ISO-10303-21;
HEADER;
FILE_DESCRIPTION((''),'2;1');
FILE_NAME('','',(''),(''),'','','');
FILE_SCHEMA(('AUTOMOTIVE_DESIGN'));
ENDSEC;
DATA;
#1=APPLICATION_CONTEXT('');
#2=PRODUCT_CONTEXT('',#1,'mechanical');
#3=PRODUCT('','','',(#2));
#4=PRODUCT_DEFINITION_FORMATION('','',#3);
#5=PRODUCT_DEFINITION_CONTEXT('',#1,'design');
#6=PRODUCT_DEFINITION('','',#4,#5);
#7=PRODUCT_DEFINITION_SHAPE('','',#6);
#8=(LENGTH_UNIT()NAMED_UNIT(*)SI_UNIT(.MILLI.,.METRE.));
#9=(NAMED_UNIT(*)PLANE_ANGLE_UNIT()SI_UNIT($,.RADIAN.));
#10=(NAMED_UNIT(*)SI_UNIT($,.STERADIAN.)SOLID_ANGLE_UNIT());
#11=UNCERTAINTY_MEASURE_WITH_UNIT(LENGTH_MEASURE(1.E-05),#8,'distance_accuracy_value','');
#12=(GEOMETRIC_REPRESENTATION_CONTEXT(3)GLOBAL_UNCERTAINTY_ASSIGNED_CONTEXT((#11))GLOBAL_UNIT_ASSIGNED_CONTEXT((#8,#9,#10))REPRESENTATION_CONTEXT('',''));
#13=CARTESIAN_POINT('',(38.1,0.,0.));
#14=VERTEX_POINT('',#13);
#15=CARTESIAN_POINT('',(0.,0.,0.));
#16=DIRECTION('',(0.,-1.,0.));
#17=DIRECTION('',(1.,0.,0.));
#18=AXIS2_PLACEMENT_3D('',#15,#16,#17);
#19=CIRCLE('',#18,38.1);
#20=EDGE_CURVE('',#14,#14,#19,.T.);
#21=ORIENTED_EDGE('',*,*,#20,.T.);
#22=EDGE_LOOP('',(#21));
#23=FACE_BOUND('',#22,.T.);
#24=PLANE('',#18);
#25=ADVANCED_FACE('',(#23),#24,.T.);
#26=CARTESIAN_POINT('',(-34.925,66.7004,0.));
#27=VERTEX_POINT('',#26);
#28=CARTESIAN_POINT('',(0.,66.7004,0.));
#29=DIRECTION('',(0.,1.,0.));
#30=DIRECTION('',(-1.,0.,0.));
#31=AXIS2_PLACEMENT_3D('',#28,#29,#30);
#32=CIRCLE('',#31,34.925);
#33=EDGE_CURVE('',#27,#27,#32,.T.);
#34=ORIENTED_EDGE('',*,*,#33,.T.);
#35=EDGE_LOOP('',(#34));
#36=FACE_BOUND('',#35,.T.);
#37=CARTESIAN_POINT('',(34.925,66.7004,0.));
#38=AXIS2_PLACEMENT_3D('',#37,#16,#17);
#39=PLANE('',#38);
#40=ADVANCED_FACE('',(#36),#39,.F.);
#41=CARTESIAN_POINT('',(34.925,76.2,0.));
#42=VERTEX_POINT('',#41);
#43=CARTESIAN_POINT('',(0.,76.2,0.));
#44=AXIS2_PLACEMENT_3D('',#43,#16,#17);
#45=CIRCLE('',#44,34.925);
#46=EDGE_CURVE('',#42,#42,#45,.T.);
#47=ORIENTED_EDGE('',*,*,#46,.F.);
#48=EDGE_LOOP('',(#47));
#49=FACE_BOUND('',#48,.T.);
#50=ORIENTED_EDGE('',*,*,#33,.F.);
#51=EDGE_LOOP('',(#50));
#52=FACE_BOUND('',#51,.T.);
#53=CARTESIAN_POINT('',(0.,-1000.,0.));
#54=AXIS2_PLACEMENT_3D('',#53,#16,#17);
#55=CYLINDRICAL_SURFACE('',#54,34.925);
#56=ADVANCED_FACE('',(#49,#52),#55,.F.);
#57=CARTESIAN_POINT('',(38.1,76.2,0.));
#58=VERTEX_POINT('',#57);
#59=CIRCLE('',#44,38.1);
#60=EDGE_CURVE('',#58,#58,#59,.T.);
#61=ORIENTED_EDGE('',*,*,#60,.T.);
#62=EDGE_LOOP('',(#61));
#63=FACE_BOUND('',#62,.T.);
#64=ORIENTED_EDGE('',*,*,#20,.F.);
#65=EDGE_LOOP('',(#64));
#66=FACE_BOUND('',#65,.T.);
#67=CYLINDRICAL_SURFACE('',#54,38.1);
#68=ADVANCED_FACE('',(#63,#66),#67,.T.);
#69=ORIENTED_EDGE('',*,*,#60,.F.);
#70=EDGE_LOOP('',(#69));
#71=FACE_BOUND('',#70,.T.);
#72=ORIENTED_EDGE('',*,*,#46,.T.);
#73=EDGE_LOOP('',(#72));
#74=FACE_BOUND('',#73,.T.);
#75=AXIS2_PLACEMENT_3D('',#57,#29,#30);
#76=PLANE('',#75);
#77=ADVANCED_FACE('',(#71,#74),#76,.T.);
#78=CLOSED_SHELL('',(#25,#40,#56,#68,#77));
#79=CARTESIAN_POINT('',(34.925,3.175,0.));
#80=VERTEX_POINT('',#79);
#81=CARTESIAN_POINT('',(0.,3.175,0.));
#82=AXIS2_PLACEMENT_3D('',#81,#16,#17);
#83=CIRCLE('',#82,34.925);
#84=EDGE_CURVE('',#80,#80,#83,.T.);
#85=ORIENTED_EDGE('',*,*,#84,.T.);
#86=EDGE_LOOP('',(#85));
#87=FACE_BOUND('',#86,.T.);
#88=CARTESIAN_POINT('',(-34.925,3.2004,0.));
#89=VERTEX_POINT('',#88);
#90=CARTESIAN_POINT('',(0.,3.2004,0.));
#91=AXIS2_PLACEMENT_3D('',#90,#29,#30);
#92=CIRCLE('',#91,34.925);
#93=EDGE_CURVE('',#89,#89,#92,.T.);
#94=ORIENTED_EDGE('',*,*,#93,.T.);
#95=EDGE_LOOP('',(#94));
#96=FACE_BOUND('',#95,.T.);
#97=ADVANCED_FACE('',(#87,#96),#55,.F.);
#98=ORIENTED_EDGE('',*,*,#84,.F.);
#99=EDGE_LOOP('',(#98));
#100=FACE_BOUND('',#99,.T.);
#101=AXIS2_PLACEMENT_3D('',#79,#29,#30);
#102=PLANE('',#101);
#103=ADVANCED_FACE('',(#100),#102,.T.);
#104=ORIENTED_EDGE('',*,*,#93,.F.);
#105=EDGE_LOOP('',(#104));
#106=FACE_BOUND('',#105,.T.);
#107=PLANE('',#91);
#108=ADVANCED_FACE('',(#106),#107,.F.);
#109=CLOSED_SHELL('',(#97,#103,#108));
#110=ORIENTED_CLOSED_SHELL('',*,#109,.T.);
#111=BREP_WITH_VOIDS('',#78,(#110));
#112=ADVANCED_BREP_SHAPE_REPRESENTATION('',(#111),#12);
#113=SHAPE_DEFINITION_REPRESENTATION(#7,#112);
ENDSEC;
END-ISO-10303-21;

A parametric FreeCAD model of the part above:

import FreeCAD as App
import Part
import Sketcher

V = App.Vector
Q = App.Units.Quantity


def add_polygon(sketch, points):
    """Adds a closed chain of lines whose ends are joined by coincident constraints."""
    first, n = sketch.GeometryCount, len(points)
    for a, b in zip(points, points[1:] + points[:1]):
        sketch.addGeometry(Part.LineSegment(App.Vector(*a, 0), App.Vector(*b, 0)), False)
    for i in range(n):
        sketch.addConstraint(Sketcher.Constraint("Coincident", first + i, 2, first + (i + 1) % n, 1))

doc = App.newDocument("Part")
body = doc.addObject("PartDesign::Body", "Body")

# Sketch on XY plane
sketch1 = body.newObject("Sketcher::SketchObject", "Sketch")
sketch1.AttachmentSupport = (doc.getObject("XY_Plane"), [""])
sketch1.MapMode = "FlatFace"
add_polygon(sketch1, [(34.9, 76.2), (34.9, 3.2), (0, 3.2), (0, 0), (38.1, 0), (38.1, 76.2)])  # lines 0-5
sketch1.addConstraint(Sketcher.Constraint("Vertical", 0))
sketch1.addConstraint(Sketcher.Constraint("Horizontal", 1))
sketch1.addConstraint(Sketcher.Constraint("Vertical", 2))
sketch1.addConstraint(Sketcher.Constraint("Horizontal", 3))
sketch1.addConstraint(Sketcher.Constraint("Vertical", 4))
sketch1.addConstraint(Sketcher.Constraint("Horizontal", 5))
sketch1.addConstraint(Sketcher.Constraint("Coincident", 2, 2, -1, 1))
sketch1.addConstraint(Sketcher.Constraint("Equal", 5, 2))
sketch1.addConstraint(Sketcher.Constraint("DistanceY", 4, 1, 4, 2, Q("3 in")))
sketch1.addConstraint(Sketcher.Constraint("DistanceX", 3, 1, 3, 2, Q("1.5 in")))
sketch1.addConstraint(Sketcher.Constraint("DistanceX", 1, 2, 1, 1, Q("1.375 in")))
revolution = body.newObject("PartDesign::Revolution", "Revolution")
revolution.Profile = sketch1
revolution.ReferenceAxis = (sketch1, ["V_Axis"])
revolution.Angle = 360

# Sketch on XY plane
sketch2 = body.newObject("Sketcher::SketchObject", "Sketch001")
sketch2.AttachmentSupport = (doc.getObject("XY_Plane"), [""])
sketch2.MapMode = "FlatFace"
add_polygon(sketch2, [(0, 67), (0, 3), (35, 3), (35, 67)])  # lines 0-3
sketch2.addConstraint(Sketcher.Constraint("Vertical", 0))
sketch2.addConstraint(Sketcher.Constraint("Horizontal", 1))
sketch2.addConstraint(Sketcher.Constraint("Vertical", 2))
sketch2.addConstraint(Sketcher.Constraint("Horizontal", 3))
sketch2.addConstraint(Sketcher.Constraint("PointOnObject", 0, 2, -2))
sketch2.addConstraint(Sketcher.Constraint("DistanceY", 0, 2, 0, 1, Q("2.5 in")))
sketch2.addConstraint(Sketcher.Constraint("DistanceX", 1, 1, 1, 2, Q("1.375 in")))
sketch2.addConstraint(Sketcher.Constraint("DistanceY", -1, 1, 0, 2, Q("0.126 in")))
revolution2 = body.newObject("PartDesign::Revolution", "Revolution001")
revolution2.Profile = sketch2
revolution2.ReferenceAxis = (sketch2, ["V_Axis"])
revolution2.Angle = 360

doc.recompute()
